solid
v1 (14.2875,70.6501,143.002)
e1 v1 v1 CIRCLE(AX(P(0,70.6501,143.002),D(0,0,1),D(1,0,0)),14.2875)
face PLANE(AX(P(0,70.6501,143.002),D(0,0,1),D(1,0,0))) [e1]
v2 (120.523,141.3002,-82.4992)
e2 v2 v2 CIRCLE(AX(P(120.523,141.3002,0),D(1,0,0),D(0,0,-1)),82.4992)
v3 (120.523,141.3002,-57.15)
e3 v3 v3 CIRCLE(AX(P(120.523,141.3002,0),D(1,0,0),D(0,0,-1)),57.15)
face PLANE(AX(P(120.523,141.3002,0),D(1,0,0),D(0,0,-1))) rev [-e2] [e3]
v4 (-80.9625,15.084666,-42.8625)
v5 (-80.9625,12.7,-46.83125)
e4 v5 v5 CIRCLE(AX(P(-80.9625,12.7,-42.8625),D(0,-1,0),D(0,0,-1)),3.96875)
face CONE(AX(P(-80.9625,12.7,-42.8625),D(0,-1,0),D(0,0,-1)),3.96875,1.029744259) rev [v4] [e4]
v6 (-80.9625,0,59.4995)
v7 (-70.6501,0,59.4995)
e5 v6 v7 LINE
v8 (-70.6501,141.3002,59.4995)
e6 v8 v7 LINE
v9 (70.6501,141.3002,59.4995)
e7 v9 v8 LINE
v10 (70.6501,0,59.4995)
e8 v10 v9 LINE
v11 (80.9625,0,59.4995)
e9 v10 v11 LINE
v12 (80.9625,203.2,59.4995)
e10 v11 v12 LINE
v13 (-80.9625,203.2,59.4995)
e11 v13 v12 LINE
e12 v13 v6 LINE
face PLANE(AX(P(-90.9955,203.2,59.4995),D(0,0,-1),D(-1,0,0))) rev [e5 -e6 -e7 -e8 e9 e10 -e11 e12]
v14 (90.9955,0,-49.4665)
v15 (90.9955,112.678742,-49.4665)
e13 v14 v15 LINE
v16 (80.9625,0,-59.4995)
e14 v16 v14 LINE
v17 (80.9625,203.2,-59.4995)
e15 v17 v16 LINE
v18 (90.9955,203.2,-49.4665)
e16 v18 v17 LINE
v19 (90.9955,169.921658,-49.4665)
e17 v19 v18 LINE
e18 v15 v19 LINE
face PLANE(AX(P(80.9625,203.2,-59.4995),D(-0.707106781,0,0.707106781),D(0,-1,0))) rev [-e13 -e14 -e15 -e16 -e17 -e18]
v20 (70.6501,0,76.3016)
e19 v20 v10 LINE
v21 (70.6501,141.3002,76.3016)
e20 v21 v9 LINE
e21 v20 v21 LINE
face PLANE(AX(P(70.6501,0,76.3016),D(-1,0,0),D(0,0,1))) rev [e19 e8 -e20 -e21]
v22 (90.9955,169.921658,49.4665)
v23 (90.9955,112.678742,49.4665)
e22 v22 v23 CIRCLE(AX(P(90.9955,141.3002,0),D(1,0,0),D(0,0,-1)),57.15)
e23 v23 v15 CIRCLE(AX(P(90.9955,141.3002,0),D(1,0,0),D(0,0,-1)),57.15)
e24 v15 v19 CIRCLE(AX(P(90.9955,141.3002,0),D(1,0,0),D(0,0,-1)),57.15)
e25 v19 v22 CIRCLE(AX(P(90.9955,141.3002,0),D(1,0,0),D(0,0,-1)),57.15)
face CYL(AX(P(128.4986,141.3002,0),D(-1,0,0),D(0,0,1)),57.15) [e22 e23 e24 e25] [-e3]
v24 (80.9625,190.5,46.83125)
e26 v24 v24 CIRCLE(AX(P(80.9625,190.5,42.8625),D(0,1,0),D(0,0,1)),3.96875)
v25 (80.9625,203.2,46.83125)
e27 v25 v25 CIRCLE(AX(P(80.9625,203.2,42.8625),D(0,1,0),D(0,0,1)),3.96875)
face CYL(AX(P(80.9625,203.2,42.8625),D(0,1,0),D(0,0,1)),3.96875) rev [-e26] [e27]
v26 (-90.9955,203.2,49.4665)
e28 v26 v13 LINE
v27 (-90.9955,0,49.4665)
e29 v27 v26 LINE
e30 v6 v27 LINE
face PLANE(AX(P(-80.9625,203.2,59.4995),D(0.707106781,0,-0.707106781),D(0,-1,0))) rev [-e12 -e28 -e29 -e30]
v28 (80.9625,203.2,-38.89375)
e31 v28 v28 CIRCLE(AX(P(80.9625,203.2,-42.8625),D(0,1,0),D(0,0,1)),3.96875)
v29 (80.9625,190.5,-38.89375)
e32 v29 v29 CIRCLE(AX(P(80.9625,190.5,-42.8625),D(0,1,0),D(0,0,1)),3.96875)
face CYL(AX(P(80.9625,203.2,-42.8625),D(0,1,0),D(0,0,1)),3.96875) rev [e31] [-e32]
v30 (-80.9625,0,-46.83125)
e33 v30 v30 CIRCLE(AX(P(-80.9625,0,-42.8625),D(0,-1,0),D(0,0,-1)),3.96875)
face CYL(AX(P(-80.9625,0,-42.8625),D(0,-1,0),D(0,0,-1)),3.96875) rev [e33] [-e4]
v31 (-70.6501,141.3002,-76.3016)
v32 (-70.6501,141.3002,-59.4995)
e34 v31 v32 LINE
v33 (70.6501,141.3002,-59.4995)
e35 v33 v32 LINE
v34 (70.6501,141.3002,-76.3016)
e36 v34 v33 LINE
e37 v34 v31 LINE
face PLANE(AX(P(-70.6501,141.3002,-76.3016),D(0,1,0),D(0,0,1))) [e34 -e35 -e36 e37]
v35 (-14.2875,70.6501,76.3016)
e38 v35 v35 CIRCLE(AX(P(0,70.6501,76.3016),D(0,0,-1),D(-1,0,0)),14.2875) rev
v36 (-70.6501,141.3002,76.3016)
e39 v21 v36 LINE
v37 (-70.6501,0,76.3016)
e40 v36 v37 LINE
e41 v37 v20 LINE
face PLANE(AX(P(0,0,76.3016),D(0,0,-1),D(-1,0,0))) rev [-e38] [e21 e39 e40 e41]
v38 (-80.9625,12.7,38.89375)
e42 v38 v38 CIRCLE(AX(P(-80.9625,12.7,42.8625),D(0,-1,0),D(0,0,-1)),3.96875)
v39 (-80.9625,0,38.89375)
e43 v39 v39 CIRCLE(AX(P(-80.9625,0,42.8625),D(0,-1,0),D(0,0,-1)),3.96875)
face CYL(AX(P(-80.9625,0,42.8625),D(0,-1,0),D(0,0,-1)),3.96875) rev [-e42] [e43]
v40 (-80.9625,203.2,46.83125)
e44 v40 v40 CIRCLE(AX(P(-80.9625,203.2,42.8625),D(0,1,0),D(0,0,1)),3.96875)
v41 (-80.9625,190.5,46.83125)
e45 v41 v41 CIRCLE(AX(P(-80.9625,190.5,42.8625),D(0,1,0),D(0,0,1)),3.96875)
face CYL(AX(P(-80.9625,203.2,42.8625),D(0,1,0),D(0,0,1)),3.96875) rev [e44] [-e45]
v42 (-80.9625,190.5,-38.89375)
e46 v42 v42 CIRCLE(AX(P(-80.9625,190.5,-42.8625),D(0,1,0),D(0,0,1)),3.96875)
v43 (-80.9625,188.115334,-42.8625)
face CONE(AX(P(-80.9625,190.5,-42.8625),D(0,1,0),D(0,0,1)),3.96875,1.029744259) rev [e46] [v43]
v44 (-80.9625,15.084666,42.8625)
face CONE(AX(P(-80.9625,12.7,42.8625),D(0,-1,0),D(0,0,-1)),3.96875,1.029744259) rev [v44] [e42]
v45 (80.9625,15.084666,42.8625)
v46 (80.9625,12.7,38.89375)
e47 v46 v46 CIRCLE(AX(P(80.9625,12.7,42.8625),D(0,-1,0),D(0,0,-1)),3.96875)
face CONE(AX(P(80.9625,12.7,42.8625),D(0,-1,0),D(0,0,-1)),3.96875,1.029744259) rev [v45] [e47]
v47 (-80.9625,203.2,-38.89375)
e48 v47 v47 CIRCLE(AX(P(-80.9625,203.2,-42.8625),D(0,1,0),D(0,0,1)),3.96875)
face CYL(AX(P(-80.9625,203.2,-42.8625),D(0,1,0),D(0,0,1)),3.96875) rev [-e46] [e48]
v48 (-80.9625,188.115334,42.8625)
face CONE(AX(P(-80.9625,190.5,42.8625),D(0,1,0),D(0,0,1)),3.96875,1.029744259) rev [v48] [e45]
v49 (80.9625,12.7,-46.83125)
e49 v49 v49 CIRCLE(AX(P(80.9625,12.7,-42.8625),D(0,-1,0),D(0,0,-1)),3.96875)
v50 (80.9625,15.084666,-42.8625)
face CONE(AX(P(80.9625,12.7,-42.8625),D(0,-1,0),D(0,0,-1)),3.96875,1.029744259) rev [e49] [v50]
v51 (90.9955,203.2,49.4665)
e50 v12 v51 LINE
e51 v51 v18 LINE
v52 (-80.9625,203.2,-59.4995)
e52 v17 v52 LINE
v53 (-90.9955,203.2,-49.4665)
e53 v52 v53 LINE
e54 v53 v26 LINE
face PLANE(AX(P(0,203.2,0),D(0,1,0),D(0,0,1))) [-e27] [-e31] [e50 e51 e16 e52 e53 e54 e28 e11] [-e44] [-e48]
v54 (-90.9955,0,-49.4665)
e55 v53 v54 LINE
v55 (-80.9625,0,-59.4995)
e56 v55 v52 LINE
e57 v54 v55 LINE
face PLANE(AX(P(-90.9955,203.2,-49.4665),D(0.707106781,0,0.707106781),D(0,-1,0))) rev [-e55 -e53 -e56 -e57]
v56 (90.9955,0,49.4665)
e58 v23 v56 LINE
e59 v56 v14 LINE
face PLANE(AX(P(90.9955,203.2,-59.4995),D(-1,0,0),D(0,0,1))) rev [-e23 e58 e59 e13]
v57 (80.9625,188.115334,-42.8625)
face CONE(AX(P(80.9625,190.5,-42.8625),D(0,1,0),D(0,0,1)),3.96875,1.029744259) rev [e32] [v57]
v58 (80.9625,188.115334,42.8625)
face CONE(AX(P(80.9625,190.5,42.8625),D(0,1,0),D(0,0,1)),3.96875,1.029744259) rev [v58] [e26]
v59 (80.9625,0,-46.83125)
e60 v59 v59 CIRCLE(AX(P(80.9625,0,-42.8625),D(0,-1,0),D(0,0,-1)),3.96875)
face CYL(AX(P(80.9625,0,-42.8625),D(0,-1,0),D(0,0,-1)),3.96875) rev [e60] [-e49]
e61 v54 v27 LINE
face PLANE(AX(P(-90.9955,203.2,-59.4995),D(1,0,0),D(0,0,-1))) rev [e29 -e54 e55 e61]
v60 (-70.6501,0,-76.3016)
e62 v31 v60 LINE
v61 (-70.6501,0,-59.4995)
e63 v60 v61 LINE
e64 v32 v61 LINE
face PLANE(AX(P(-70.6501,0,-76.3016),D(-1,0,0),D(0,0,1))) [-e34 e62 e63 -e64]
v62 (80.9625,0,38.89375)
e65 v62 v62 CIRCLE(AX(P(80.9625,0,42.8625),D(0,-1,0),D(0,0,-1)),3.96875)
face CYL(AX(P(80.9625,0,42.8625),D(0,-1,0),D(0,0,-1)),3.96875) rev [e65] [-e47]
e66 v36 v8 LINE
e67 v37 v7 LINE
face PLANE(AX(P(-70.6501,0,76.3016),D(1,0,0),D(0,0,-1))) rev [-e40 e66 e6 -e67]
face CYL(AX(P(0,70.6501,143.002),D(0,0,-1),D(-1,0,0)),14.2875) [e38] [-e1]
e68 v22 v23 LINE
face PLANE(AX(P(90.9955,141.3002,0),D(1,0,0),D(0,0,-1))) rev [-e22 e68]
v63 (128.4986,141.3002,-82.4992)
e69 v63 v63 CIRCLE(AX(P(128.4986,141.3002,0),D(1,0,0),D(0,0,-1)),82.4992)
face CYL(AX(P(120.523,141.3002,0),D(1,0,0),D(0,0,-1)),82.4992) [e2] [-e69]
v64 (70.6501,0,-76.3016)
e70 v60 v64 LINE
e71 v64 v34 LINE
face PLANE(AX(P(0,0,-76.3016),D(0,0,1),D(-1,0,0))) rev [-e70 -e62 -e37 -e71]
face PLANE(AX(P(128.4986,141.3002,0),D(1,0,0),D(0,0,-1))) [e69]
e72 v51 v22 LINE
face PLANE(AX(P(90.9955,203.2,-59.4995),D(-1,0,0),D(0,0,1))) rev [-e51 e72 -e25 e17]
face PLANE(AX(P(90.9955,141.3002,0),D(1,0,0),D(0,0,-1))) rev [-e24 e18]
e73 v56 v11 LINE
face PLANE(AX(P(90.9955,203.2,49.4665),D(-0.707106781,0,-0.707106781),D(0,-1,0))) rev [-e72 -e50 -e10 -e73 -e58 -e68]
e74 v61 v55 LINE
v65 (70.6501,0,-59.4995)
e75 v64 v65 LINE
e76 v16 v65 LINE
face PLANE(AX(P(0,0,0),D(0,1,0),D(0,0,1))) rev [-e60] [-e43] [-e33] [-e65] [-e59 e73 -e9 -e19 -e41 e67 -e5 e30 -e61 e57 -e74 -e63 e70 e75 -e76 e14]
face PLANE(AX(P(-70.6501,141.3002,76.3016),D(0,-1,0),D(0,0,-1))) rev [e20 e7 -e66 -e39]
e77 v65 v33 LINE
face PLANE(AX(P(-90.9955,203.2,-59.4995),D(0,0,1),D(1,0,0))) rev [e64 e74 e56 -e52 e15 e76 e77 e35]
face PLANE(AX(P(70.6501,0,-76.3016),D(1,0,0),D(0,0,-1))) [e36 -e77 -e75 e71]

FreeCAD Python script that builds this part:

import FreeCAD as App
import Part
import Sketcher

V = App.Vector
Q = App.Units.Quantity


def edges_at(feature, points):
    """Names of the edges that pass closest to the given points."""
    edges = feature.Shape.Edges
    near = lambda p: min(range(len(edges)), key=lambda i: edges[i].distToShape(Part.Vertex(*p))[0])
    return sorted({f"Edge{near(p) + 1}" for p in points})


def add_polygon(sketch, points):
    """Adds a closed chain of lines whose ends are joined by coincident constraints."""
    first, n = sketch.GeometryCount, len(points)
    for a, b in zip(points, points[1:] + points[:1]):
        sketch.addGeometry(Part.LineSegment(App.Vector(*a, 0), App.Vector(*b, 0)), False)
    for i in range(n):
        sketch.addConstraint(Sketcher.Constraint("Coincident", first + i, 2, first + (i + 1) % n, 1))

doc = App.newDocument("Part")
body = doc.addObject("PartDesign::Body", "Body")

# Sketch on XZ plane
sketch1 = doc.addObject("Sketcher::SketchObject", "Sketch")
body.addObject(sketch1)
sketch1.AttachmentSupport = (doc.XZ_Plane, [""])
sketch1.MapMode = "FlatFace"
add_polygon(sketch1, [(-91, -59), (-91, 59), (91, 59), (91, -59)])  # lines 0-3
sketch1.addConstraint(Sketcher.Constraint("Vertical", 0))
sketch1.addConstraint(Sketcher.Constraint("Horizontal", 1))
sketch1.addConstraint(Sketcher.Constraint("Vertical", 2))
sketch1.addConstraint(Sketcher.Constraint("Horizontal", 3))
sketch1.addConstraint(Sketcher.Constraint("Symmetric", 0, 2, 2, 2, -1, 1))
sketch1.addConstraint(Sketcher.Constraint("DistanceX", 1, 1, 1, 2, Q("7.165 in")))
sketch1.addConstraint(Sketcher.Constraint("DistanceY", 0, 1, 0, 2, Q("4.685 in")))
pad1 = doc.addObject("PartDesign::Pad", "Pad")
body.addObject(pad1)
pad1.Profile = sketch1
pad1.Length = Q("8 in")
pad1.Reversed = True

# Sketch on XY plane
sketch2 = doc.addObject("Sketcher::SketchObject", "Sketch001")
body.addObject(sketch2)
sketch2.AttachmentSupport = (doc.XY_Plane, [""])
sketch2.MapMode = "FlatFace"
sketch2.AttachmentOffset = App.Placement(V(0, 0, 2.3425 * 25.4), App.Rotation())
add_polygon(sketch2, [(-71, 141), (-71, 0), (71, 0), (71, 141)])  # lines 0-3
sketch2.addConstraint(Sketcher.Constraint("Vertical", 0))
sketch2.addConstraint(Sketcher.Constraint("Horizontal", 1))
sketch2.addConstraint(Sketcher.Constraint("Vertical", 2))
sketch2.addConstraint(Sketcher.Constraint("Horizontal", 3))
sketch2.addConstraint(Sketcher.Constraint("Symmetric", 0, 2, 1, 2, -1, 1))
sketch2.addConstraint(Sketcher.Constraint("Equal", 3, 0))
sketch2.addConstraint(Sketcher.Constraint("DistanceX", 1, 1, 1, 2, Q("5.563 in")))
pad2 = doc.addObject("PartDesign::Pad", "Pad001")
body.addObject(pad2)
pad2.Profile = sketch2
pad2.Length = Q("0.6615 in")

# Sketch on XY plane
sketch3 = doc.addObject("Sketcher::SketchObject", "Sketch002")
body.addObject(sketch3)
sketch3.AttachmentSupport = (doc.XY_Plane, [""])
sketch3.MapMode = "FlatFace"
sketch3.AttachmentOffset = App.Placement(V(0, 0, 3.004 * 25.4), App.Rotation())
sketch3.addGeometry(Part.Circle(V(0, 71, 0), V(0, 0, 1), 14), False)
sketch3.addConstraint(Sketcher.Constraint("PointOnObject", 0, 3, -2))
sketch3.addConstraint(Sketcher.Constraint("Diameter", 0, Q("1.125 in")))
sketch3.addConstraint(Sketcher.Constraint("DistanceY", -1, 1, 0, 3, Q("2.7815 in")))
pad3 = doc.addObject("PartDesign::Pad", "Pad002")
body.addObject(pad3)
pad3.Profile = sketch3
pad3.Length = Q("2.626 in")

# Sketch on XZ plane
sketch4 = doc.addObject("Sketcher::SketchObject", "Sketch003")
body.addObject(sketch4)
sketch4.AttachmentSupport = (doc.XZ_Plane, [""])
sketch4.MapMode = "FlatFace"
sketch4.addGeometry(Part.Circle(V(-81, -42.9, 0), V(0, 0, 1), 4), False)
sketch4.addGeometry(Part.Circle(V(-81, 42.9, 0), V(0, 0, 1), 4), False)
sketch4.addGeometry(Part.Circle(V(81, 42.9, 0), V(0, 0, 1), 4), False)
sketch4.addGeometry(Part.Circle(V(81, -42.9, 0), V(0, 0, 1), 4), False)
sketch4.addConstraint(Sketcher.Constraint("Equal", 0, 1))
sketch4.addConstraint(Sketcher.Constraint("Equal", 1, 2))
sketch4.addConstraint(Sketcher.Constraint("Equal", 2, 3))
sketch4.addConstraint(Sketcher.Constraint("Symmetric", 0, 3, 2, 3, -1, 1))
sketch4.addConstraint(Sketcher.Constraint("Symmetric", 1, 3, 3, 3, -1, 1))
sketch4.addConstraint(Sketcher.Constraint("Symmetric", 1, 3, 2, 3, -2))
sketch4.addConstraint(Sketcher.Constraint("Diameter", 0, Q("0.3125 in")))
sketch4.addConstraint(Sketcher.Constraint("DistanceX", 0, 3, -1, 1, Q("3.1875 in")))
sketch4.addConstraint(Sketcher.Constraint("DistanceY", 0, 3, -1, 1, Q("1.6875 in")))
doc.recompute()
hole = doc.addObject("PartDesign::Hole", "Hole")
body.addObject(hole)
hole.Profile = sketch4
hole.ThreadType = "None"
hole.Diameter = Q("0.3125 in")
hole.DepthType = "Dimension"
hole.Depth = Q("0.5 in")
hole.DrillPoint = "Angled"
hole.DrillPointAngle = 118

# Sketch on XZ plane
sketch5 = doc.addObject("Sketcher::SketchObject", "Sketch004")
body.addObject(sketch5)
sketch5.AttachmentSupport = (doc.XZ_Plane, [""])
sketch5.MapMode = "FlatFace"
sketch5.AttachmentOffset = App.Placement(V(0, 0, -8 * 25.4), App.Rotation())
sketch5.addGeometry(Part.Circle(V(81, -42.9, 0), V(0, 0, 1), 4), False)
sketch5.addGeometry(Part.Circle(V(81, 42.9, 0), V(0, 0, 1), 4), False)
sketch5.addGeometry(Part.Circle(V(-81, 42.9, 0), V(0, 0, 1), 4), False)
sketch5.addGeometry(Part.Circle(V(-81, -42.9, 0), V(0, 0, 1), 4), False)
sketch5.addConstraint(Sketcher.Constraint("Equal", 0, 1))
sketch5.addConstraint(Sketcher.Constraint("Equal", 1, 2))
sketch5.addConstraint(Sketcher.Constraint("Equal", 2, 3))
sketch5.addConstraint(Sketcher.Constraint("Symmetric", 0, 3, 2, 3, -1, 1))
sketch5.addConstraint(Sketcher.Constraint("Symmetric", 1, 3, 3, 3, -1, 1))
sketch5.addConstraint(Sketcher.Constraint("Symmetric", 1, 3, 2, 3, -2))
sketch5.addConstraint(Sketcher.Constraint("Diameter", 0, Q("0.3125 in")))
sketch5.addConstraint(Sketcher.Constraint("DistanceX", -1, 1, 0, 3, Q("3.1875 in")))
sketch5.addConstraint(Sketcher.Constraint("DistanceY", 0, 3, -1, 1, Q("1.6875 in")))
doc.recompute()
hole2 = doc.addObject("PartDesign::Hole", "Hole001")
body.addObject(hole2)
hole2.Profile = sketch5
hole2.ThreadType = "None"
hole2.Diameter = Q("0.3125 in")
hole2.DepthType = "Dimension"
hole2.Depth = Q("0.5 in")
hole2.DrillPoint = "Angled"
hole2.DrillPointAngle = 118
hole2.Reversed = True
doc.recompute()

chamfer = doc.addObject("PartDesign::Chamfer", "Chamfer")
body.addObject(chamfer)
chamfer.Base = (hole2, edges_at(hole2, [
    (90.996, 101.6, 59.499),
    (-90.996, 101.6, 59.499),
    (-90.996, 101.6, -59.499),
    (90.996, 101.6, -59.499),
]))
chamfer.Size = Q("0.395 in")
doc.recompute()

mirrored = doc.addObject("PartDesign::Mirrored", "Mirrored")
body.addObject(mirrored)
mirrored.Originals = [pad2]
mirrored.MirrorPlane = (doc.XY_Plane, [""])
body.Tip = mirrored

# Sketch on YZ plane
sketch6 = doc.addObject("Sketcher::SketchObject", "Sketch005")
body.addObject(sketch6)
sketch6.AttachmentSupport = (doc.YZ_Plane, [""])
sketch6.MapMode = "FlatFace"
sketch6.AttachmentOffset = App.Placement(V(0, 0, 3.5825 * 25.4), App.Rotation())
sketch6.addGeometry(Part.Circle(V(141, 0, 0), V(0, 0, 1), 57), False)
sketch6.addConstraint(Sketcher.Constraint("PointOnObject", 0, 3, -1))
sketch6.addConstraint(Sketcher.Constraint("Diameter", 0, Q("4.5 in")))
sketch6.addConstraint(Sketcher.Constraint("DistanceX", -1, 1, 0, 3, Q("5.563 in")))
pad4 = doc.addObject("PartDesign::Pad", "Pad003")
body.addObject(pad4)
pad4.Profile = sketch6
pad4.Length = Q("1.4765 in")

# Sketch on YZ plane
sketch7 = doc.addObject("Sketcher::SketchObject", "Sketch006")
body.addObject(sketch7)
sketch7.AttachmentSupport = (doc.YZ_Plane, [""])
sketch7.MapMode = "FlatFace"
sketch7.AttachmentOffset = App.Placement(V(0, 0, 5.059 * 25.4), App.Rotation())
sketch7.addGeometry(Part.Circle(V(141, 0, 0), V(0, 0, 1), 82), False)
sketch7.addConstraint(Sketcher.Constraint("PointOnObject", 0, 3, -1))
sketch7.addConstraint(Sketcher.Constraint("Diameter", 0, Q("6.496 in")))
sketch7.addConstraint(Sketcher.Constraint("DistanceX", -1, 1, 0, 3, Q("5.563 in")))
pad5 = doc.addObject("PartDesign::Pad", "Pad004")
body.addObject(pad5)
pad5.Profile = sketch7
pad5.Length = Q("0.314 in")
pad5.Reversed = True

doc.recompute()
